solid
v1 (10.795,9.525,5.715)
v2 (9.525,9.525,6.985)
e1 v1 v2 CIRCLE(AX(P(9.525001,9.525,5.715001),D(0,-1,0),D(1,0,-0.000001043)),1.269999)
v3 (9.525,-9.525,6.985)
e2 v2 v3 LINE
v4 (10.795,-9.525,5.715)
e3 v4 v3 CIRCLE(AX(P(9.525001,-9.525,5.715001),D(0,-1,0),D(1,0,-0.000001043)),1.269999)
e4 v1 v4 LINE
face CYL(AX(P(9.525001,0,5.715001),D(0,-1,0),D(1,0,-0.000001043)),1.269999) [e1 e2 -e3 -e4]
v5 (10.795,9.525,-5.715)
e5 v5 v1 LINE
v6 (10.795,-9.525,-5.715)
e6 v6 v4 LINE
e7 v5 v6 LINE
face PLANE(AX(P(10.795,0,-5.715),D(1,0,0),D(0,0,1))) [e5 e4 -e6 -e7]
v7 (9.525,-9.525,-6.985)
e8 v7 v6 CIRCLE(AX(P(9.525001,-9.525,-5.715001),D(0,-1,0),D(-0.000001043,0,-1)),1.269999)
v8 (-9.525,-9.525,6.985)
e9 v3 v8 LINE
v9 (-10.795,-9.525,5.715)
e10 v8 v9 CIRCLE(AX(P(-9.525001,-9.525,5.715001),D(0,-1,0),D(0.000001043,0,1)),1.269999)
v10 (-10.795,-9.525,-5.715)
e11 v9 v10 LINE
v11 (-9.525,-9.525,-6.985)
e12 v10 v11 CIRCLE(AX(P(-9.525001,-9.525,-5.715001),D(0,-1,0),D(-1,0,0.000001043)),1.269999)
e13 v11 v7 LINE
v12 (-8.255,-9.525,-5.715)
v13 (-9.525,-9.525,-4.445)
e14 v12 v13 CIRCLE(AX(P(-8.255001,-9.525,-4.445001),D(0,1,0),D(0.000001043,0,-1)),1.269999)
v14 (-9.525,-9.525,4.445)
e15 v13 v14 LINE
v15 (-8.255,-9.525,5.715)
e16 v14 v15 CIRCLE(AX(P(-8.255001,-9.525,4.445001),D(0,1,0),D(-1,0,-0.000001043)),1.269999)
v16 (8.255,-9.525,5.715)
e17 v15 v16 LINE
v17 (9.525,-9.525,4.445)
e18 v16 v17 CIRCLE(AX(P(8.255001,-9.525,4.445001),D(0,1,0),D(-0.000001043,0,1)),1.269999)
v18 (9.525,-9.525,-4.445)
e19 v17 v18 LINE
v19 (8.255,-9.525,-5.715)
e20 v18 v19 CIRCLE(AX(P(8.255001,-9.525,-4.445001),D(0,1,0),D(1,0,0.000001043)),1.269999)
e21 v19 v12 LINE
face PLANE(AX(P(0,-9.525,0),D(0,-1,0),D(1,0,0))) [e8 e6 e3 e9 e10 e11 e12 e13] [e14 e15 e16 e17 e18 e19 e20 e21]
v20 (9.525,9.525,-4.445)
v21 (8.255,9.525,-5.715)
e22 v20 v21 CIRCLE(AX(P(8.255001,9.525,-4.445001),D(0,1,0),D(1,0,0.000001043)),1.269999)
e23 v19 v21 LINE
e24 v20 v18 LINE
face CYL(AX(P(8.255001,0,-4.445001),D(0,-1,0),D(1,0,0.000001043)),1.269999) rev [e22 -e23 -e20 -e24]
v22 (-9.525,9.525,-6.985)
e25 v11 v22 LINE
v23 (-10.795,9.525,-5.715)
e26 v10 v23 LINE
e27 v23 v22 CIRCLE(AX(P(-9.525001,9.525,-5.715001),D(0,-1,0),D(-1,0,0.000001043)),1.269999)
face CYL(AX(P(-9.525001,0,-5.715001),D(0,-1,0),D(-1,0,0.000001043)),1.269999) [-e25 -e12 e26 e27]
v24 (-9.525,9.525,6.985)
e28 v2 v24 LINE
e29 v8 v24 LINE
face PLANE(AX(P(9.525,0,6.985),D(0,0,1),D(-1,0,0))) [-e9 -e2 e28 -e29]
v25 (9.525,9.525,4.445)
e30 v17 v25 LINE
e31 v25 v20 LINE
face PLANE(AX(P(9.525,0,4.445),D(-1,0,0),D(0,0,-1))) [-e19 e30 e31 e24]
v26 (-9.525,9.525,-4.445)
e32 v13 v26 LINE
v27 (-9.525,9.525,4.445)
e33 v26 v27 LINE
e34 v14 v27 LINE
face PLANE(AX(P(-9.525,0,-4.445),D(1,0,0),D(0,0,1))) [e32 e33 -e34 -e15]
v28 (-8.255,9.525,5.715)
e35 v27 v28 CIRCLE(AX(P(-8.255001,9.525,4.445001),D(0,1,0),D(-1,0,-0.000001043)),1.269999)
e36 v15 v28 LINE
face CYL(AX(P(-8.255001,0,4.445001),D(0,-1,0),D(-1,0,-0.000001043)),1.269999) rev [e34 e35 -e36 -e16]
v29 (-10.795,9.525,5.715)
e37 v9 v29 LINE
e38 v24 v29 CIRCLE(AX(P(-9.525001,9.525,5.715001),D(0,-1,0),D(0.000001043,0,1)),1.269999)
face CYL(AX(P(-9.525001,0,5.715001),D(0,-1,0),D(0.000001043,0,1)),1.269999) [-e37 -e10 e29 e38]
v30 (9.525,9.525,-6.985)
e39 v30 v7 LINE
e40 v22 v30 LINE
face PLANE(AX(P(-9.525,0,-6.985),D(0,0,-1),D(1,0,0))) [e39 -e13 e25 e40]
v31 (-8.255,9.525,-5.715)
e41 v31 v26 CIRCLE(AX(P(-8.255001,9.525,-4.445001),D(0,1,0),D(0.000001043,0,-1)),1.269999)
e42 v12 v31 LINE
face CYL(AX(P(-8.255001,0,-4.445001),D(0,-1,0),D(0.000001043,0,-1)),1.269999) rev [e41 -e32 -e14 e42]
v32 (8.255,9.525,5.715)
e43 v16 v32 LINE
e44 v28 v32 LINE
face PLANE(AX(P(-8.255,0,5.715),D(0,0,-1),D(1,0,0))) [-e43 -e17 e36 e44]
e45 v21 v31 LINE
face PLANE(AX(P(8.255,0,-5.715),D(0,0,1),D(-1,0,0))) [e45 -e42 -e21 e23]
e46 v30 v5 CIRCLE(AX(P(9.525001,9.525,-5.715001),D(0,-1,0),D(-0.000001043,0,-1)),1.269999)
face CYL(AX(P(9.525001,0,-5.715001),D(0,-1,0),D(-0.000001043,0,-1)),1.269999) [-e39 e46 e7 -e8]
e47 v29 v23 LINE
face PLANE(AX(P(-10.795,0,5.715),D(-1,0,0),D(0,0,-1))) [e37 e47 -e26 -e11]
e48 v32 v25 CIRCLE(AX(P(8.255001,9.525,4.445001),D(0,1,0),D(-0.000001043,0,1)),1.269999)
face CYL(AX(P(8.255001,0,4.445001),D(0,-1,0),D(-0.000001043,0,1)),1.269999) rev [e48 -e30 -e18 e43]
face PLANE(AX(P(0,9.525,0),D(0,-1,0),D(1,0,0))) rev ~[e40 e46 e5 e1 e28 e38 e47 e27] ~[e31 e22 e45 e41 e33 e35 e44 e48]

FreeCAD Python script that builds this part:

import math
import FreeCAD as App
import Part
import Sketcher
from FreeCAD import Vector
Q = App.Units.Quantity

doc = App.newDocument("Part")
body = doc.addObject("PartDesign::Body", "Body")

# Sketch on XZ plane
sketch1 = body.newObject("Sketcher::SketchObject", "Sketch")
sketch1.AttachmentSupport = (doc.getObject("XZ_Plane"), [""])
sketch1.MapMode = "FlatFace"
sketch1.addGeometry([
    Part.LineSegment(Vector(-9.5, -7, 0), Vector(9.5, -7, 0)),  # 0
    Part.ArcOfCircle(Part.Circle(Vector(9.5, -5.7, 0), Vector(0, 0, 1), 1.3), math.radians(-90), math.radians(0)),  # 1
    Part.LineSegment(Vector(10.8, -5.7, 0), Vector(10.8, 5.7, 0)),  # 2
    Part.ArcOfCircle(Part.Circle(Vector(9.5, 5.7, 0), Vector(0, 0, 1), 1.3), math.radians(0), math.radians(90)),  # 3
    Part.LineSegment(Vector(9.5, 7, 0), Vector(-9.5, 7, 0)),  # 4
    Part.ArcOfCircle(Part.Circle(Vector(-9.5, 5.7, 0), Vector(0, 0, 1), 1.3), math.radians(90), math.radians(180)),  # 5
    Part.LineSegment(Vector(-10.8, 5.7, 0), Vector(-10.8, -5.7, 0)),  # 6
    Part.ArcOfCircle(Part.Circle(Vector(-9.5, -5.7, 0), Vector(0, 0, 1), 1.3), math.radians(180), math.radians(270)),  # 7
    Part.LineSegment(Vector(9.5, 4.4, 0), Vector(9.5, -4.4, 0)),  # 8
    Part.ArcOfCircle(Part.Circle(Vector(8.3, -4.4, 0), Vector(0, 0, 1), 1.3), math.radians(-90), math.radians(0)),  # 9
    Part.LineSegment(Vector(8.3, -5.7, 0), Vector(-8.3, -5.7, 0)),  # 10
    Part.ArcOfCircle(Part.Circle(Vector(-8.3, -4.4, 0), Vector(0, 0, 1), 1.3), math.radians(180), math.radians(270)),  # 11
    Part.LineSegment(Vector(-9.5, -4.4, 0), Vector(-9.5, 4.4, 0)),  # 12
    Part.ArcOfCircle(Part.Circle(Vector(-8.3, 4.4, 0), Vector(0, 0, 1), 1.3), math.radians(90), math.radians(180)),  # 13
    Part.LineSegment(Vector(-8.3, 5.7, 0), Vector(8.3, 5.7, 0)),  # 14
    Part.ArcOfCircle(Part.Circle(Vector(8.3, 4.4, 0), Vector(0, 0, 1), 1.3), math.radians(0), math.radians(90)),  # 15
], False)
sketch1.addConstraint([
    Sketcher.Constraint("Tangent", 0, 2, 1, 1),
    Sketcher.Constraint("Tangent", 1, 2, 2, 1),
    Sketcher.Constraint("Tangent", 2, 2, 3, 1),
    Sketcher.Constraint("Tangent", 3, 2, 4, 1),
    Sketcher.Constraint("Tangent", 4, 2, 5, 1),
    Sketcher.Constraint("Tangent", 5, 2, 6, 1),
    Sketcher.Constraint("Tangent", 6, 2, 7, 1),
    Sketcher.Constraint("Tangent", 7, 2, 0, 1),
    Sketcher.Constraint("Tangent", 8, 2, 9, 2),
    Sketcher.Constraint("Tangent", 9, 1, 10, 1),
    Sketcher.Constraint("Tangent", 10, 2, 11, 2),
    Sketcher.Constraint("Tangent", 11, 1, 12, 1),
    Sketcher.Constraint("Tangent", 12, 2, 13, 2),
    Sketcher.Constraint("Tangent", 13, 1, 14, 1),
    Sketcher.Constraint("Tangent", 14, 2, 15, 2),
    Sketcher.Constraint("Tangent", 15, 1, 8, 1),
    Sketcher.Constraint("Horizontal", 0),
    Sketcher.Constraint("Vertical", 2),
    Sketcher.Constraint("Horizontal", 4),
    Sketcher.Constraint("Vertical", 6),
    Sketcher.Constraint("Vertical", 8),
    Sketcher.Constraint("Horizontal", 10),
    Sketcher.Constraint("Vertical", 12),
    Sketcher.Constraint("Horizontal", 14),
    Sketcher.Constraint("Equal", 1, 3),
    Sketcher.Constraint("Equal", 3, 5),
    Sketcher.Constraint("Equal", 5, 7),
    Sketcher.Constraint("Equal", 7, 9),
    Sketcher.Constraint("Equal", 9, 11),
    Sketcher.Constraint("Equal", 11, 13),
    Sketcher.Constraint("Equal", 13, 15),
    Sketcher.Constraint("Symmetric", 1, 3, 5, 3, -1, 1),
    Sketcher.Constraint("Symmetric", 9, 3, 13, 3, -1, 1),
    Sketcher.Constraint("Horizontal", 6, 2, 9, 1),
    Sketcher.Constraint("Vertical", 3, 2, 8, 2),
    Sketcher.Constraint("Radius", 1, Q("0.0499999 in")),
    Sketcher.Constraint("DistanceX", 0, 1, 0, 2, Q("0.75 in")),
    Sketcher.Constraint("DistanceY", 2, 1, 2, 2, Q("0.45 in")),
])
pad1 = body.newObject("PartDesign::Pad", "Pad")
pad1.Profile = sketch1
pad1.Type = "TwoLengths"
pad1.Length = Q("0.375 in")
pad1.Length2 = Q("0.375 in")

doc.recompute()
